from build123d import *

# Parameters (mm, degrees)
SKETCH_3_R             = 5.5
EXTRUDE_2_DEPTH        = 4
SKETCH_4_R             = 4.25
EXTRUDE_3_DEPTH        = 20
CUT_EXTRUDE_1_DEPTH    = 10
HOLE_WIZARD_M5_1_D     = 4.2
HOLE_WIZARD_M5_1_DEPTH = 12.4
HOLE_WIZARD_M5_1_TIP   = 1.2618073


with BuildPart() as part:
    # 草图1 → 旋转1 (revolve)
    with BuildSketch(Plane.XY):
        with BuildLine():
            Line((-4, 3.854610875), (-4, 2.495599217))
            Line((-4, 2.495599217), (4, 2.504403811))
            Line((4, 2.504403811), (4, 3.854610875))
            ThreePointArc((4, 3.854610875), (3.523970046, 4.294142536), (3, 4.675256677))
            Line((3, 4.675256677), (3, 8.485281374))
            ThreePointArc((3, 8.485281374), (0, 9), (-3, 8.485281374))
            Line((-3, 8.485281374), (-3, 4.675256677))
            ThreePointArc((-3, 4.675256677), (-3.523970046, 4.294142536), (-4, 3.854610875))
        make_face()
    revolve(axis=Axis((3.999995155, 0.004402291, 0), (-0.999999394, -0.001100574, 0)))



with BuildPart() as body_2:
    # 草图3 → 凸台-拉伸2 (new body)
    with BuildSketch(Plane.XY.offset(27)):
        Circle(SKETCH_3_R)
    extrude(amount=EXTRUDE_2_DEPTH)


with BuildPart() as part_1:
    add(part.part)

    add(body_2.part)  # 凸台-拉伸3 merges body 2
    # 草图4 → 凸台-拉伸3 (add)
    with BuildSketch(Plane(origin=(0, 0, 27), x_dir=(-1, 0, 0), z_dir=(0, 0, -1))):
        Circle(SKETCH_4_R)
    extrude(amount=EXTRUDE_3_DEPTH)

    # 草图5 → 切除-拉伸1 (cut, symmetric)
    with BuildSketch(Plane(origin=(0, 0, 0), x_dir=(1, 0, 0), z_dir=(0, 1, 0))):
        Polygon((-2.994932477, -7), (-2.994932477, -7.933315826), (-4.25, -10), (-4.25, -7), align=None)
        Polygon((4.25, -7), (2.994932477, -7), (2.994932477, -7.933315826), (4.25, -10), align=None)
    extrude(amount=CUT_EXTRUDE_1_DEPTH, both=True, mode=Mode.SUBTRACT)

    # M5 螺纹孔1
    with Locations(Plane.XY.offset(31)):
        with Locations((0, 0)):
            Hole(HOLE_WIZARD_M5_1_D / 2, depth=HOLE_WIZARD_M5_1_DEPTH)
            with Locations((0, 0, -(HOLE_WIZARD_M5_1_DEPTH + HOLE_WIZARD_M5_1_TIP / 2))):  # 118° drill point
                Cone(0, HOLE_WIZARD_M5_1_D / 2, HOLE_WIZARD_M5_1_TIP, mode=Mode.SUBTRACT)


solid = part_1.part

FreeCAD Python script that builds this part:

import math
import FreeCAD as App
import Part
import Sketcher

doc = App.newDocument("Part")
body = doc.addObject("PartDesign::Body", "Body")

sketch1 = body.newObject("Sketcher::SketchObject", "Sketch")
sketch1.AttachmentSupport = (doc.getObject("XY_Plane"), [""])
sketch1.MapMode = "FlatFace"
sketch1.addGeometry(Part.LineSegment(App.Vector(-4, 3.9, 0), App.Vector(-4, 2.5, 0)), False)
sketch1.addGeometry(Part.LineSegment(App.Vector(-4, 2.5, 0), App.Vector(4, 2.5, 0)), False)
sketch1.addGeometry(Part.LineSegment(App.Vector(4, 2.5, 0), App.Vector(4, 3.9, 0)), False)
sketch1.addGeometry(Part.ArcOfCircle(Part.Circle(App.Vector(0, 0, 0), App.Vector(0, 0, 1), 5.6), math.radians(43.94), math.radians(57.31)), False)
sketch1.addGeometry(Part.LineSegment(App.Vector(3, 4.7, 0), App.Vector(3, 8.5, 0)), False)
sketch1.addGeometry(Part.ArcOfCircle(Part.Circle(App.Vector(0, 0, 0), App.Vector(0, 0, 1), 9), math.radians(71), math.radians(109)), False)
sketch1.addGeometry(Part.LineSegment(App.Vector(-3, 8.5, 0), App.Vector(-3, 4.7, 0)), False)
sketch1.addGeometry(Part.ArcOfCircle(Part.Circle(App.Vector(0, 0, 0), App.Vector(0, 0, 1), 5.6), math.radians(122.69), math.radians(136.06)), False)
sketch1.addGeometry(Part.LineSegment(App.Vector(4, 0, 0), App.Vector(-4, 0, 0)), True)
sketch1.addConstraint(Sketcher.Constraint("Coincident", 0, 2, 1, 1))
sketch1.addConstraint(Sketcher.Constraint("Coincident", 1, 2, 2, 1))
sketch1.addConstraint(Sketcher.Constraint("Coincident", 2, 2, 3, 1))
sketch1.addConstraint(Sketcher.Constraint("Coincident", 3, 2, 4, 1))
sketch1.addConstraint(Sketcher.Constraint("Coincident", 4, 2, 5, 1))
sketch1.addConstraint(Sketcher.Constraint("Coincident", 5, 2, 6, 1))
sketch1.addConstraint(Sketcher.Constraint("Coincident", 6, 2, 7, 1))
sketch1.addConstraint(Sketcher.Constraint("Coincident", 7, 2, 0, 1))
sketch1.addConstraint(Sketcher.Constraint("Vertical", 0))
sketch1.addConstraint(Sketcher.Constraint("Vertical", 2))
sketch1.addConstraint(Sketcher.Constraint("Vertical", 4))
sketch1.addConstraint(Sketcher.Constraint("Vertical", 6))
sketch1.addConstraint(Sketcher.Constraint("Coincident", 3, 3, -1, 1))
sketch1.addConstraint(Sketcher.Constraint("Coincident", 5, 3, -1, 1))
sketch1.addConstraint(Sketcher.Constraint("Coincident", 7, 3, -1, 1))
sketch1.addConstraint(Sketcher.Constraint("Equal", 3, 7))
sketch1.addConstraint(Sketcher.Constraint("Parallel", 1, 8))
sketch1.addConstraint(Sketcher.Constraint("Horizontal", 4, 2, 5, 2))
sketch1.addConstraint(Sketcher.Constraint("Horizontal", 2, 2, 7, 2))
sketch1.addConstraint(Sketcher.Constraint("Radius", 5, 9.0))
sketch1.addConstraint(Sketcher.Constraint("DistanceX", 0, 2, -1, 1, 4.0))
sketch1.addConstraint(Sketcher.Constraint("DistanceX", -1, 1, 3, 2, 3.0))
sketch1.addConstraint(Sketcher.Constraint("Radius", 3, 5.555))
sketch1.addConstraint(Sketcher.Constraint("DistanceY", 8, 2, 0, 2, 2.499998))
sketch1.addConstraint(Sketcher.Constraint("DistanceY", 0, 2, 0, 1, 1.359012))
sketch1.addConstraint(Sketcher.Constraint("Distance", 8, 8.001491))
sketch1.addConstraint(Sketcher.Constraint("DistanceY", 2, 1, 2, 2, 1.350207))
sketch1.addConstraint(Sketcher.Constraint("DistanceX", 8, 2, -1, 1, 3.997249))
revolution = body.newObject("PartDesign::Revolution", "Revolution")
revolution.Profile = sketch1
revolution.ReferenceAxis = (sketch1, ["Axis0"])
revolution.Angle = 360
body2 = doc.addObject("PartDesign::Body", "Body001")

sketch2 = body2.newObject("Sketcher::SketchObject", "Sketch001")
sketch2.AttachmentSupport = (doc.getObject("XY_Plane001"), [""])
sketch2.MapMode = "FlatFace"
sketch2.AttachmentOffset = App.Placement(App.Vector(0, 0, 27), App.Rotation())
sketch2.addGeometry(Part.Circle(App.Vector(0, 0, 0), App.Vector(0, 0, 1), 6), False)
sketch2.addConstraint(Sketcher.Constraint("Coincident", 0, 3, -1, 1))
sketch2.addConstraint(Sketcher.Constraint("Diameter", 0, 11.0))
pad1 = body2.newObject("PartDesign::Pad", "Pad")
pad1.Profile = sketch2
pad1.Length = 4
body.AllowCompound = True
doc.recompute()

boolean = body.newObject("PartDesign::Boolean", "Boolean")
boolean.Type = "Fuse"
boolean.addObjects([body2])

sketch3 = body.newObject("Sketcher::SketchObject", "Sketch002")
sketch3.AttachmentSupport = (doc.getObject("XY_Plane"), [""])
sketch3.MapMode = "FlatFace"
sketch3.AttachmentOffset = App.Placement(App.Vector(0, 0, 27), App.Rotation())
sketch3.addGeometry(Part.Circle(App.Vector(0, 0, 0), App.Vector(0, 0, 1), 4.2), False)
sketch3.addConstraint(Sketcher.Constraint("Coincident", 0, 3, -1, 1))
sketch3.addConstraint(Sketcher.Constraint("Diameter", 0, 8.5))
pad2 = body.newObject("PartDesign::Pad", "Pad001")
pad2.Profile = sketch3
pad2.Length = 20
pad2.Reversed = True

sketch4 = body.newObject("Sketcher::SketchObject", "Sketch003")
sketch4.AttachmentSupport = (doc.getObject("XZ_Plane"), [""])
sketch4.MapMode = "FlatFace"
sketch4.addGeometry(Part.LineSegment(App.Vector(-3, 7.9, 0), App.Vector(-3, 7, 0)), False)
sketch4.addGeometry(Part.LineSegment(App.Vector(-3, 7, 0), App.Vector(-4.2, 7, 0)), False)
sketch4.addGeometry(Part.LineSegment(App.Vector(-4.2, 7, 0), App.Vector(-4.2, 10, 0)), False)
sketch4.addGeometry(Part.LineSegment(App.Vector(-4.2, 10, 0), App.Vector(-3, 7.9, 0)), False)
sketch4.addGeometry(Part.LineSegment(App.Vector(4.2, 7, 0), App.Vector(3, 7, 0)), False)
sketch4.addGeometry(Part.LineSegment(App.Vector(3, 7, 0), App.Vector(3, 7.9, 0)), False)
sketch4.addGeometry(Part.LineSegment(App.Vector(3, 7.9, 0), App.Vector(4.2, 10, 0)), False)
sketch4.addGeometry(Part.LineSegment(App.Vector(4.2, 10, 0), App.Vector(4.2, 7, 0)), False)
sketch4.addConstraint(Sketcher.Constraint("Coincident", 0, 2, 1, 1))
sketch4.addConstraint(Sketcher.Constraint("Coincident", 1, 2, 2, 1))
sketch4.addConstraint(Sketcher.Constraint("Coincident", 2, 2, 3, 1))
sketch4.addConstraint(Sketcher.Constraint("Coincident", 3, 2, 0, 1))
sketch4.addConstraint(Sketcher.Constraint("Coincident", 4, 2, 5, 1))
sketch4.addConstraint(Sketcher.Constraint("Coincident", 5, 2, 6, 1))
sketch4.addConstraint(Sketcher.Constraint("Coincident", 6, 2, 7, 1))
sketch4.addConstraint(Sketcher.Constraint("Coincident", 7, 2, 4, 1))
sketch4.addConstraint(Sketcher.Constraint("Vertical", 0))
sketch4.addConstraint(Sketcher.Constraint("Horizontal", 1))
sketch4.addConstraint(Sketcher.Constraint("Vertical", 2))
sketch4.addConstraint(Sketcher.Constraint("Horizontal", 4))
sketch4.addConstraint(Sketcher.Constraint("Vertical", 5))
sketch4.addConstraint(Sketcher.Constraint("Vertical", 7))
sketch4.addConstraint(Sketcher.Constraint("Symmetric", 0, 2, 4, 2, -2))
sketch4.addConstraint(Sketcher.Constraint("Symmetric", 2, 2, 6, 2, -2))
sketch4.addConstraint(Sketcher.Constraint("Horizontal", 3, 2, 5, 2))
sketch4.addConstraint(Sketcher.Constraint("DistanceY", 2, 1, 2, 2, 3.0))
sketch4.addConstraint(Sketcher.Constraint("DistanceY", -1, 1, 0, 2, 7.0))
sketch4.addConstraint(Sketcher.Constraint("DistanceX", 2, 2, 6, 2, 8.5))
sketch4.addConstraint(Sketcher.Constraint("Distance", 3, 2.417928))
sketch4.addConstraint(Sketcher.Constraint("DistanceX", 1, 2, 1, 1, 1.255068))
pocket1 = body.newObject("PartDesign::Pocket", "Pocket")
pocket1.Profile = sketch4
pocket1.Length = 20
pocket1.Midplane = True

sketch5 = body.newObject("Sketcher::SketchObject", "Sketch004")
sketch5.AttachmentSupport = (doc.getObject("XY_Plane"), [""])
sketch5.MapMode = "FlatFace"
sketch5.AttachmentOffset = App.Placement(App.Vector(0, 0, 31), App.Rotation())
sketch5.addGeometry(Part.Circle(App.Vector(0, 0, 0), App.Vector(0, 0, 1), 2.1), False)
sketch5.addConstraint(Sketcher.Constraint("Coincident", 0, 3, -1, 1))
sketch5.addConstraint(Sketcher.Constraint("Diameter", 0, 4.2))
doc.recompute()
hole = body.newObject("PartDesign::Hole", "Hole")
hole.Profile = sketch5
hole.ThreadType = "None"
hole.Diameter = 4.2
hole.DepthType = "Dimension"
hole.Depth = 12.4
hole.DrillPoint = "Angled"
hole.DrillPointAngle = 118

doc.recompute()
